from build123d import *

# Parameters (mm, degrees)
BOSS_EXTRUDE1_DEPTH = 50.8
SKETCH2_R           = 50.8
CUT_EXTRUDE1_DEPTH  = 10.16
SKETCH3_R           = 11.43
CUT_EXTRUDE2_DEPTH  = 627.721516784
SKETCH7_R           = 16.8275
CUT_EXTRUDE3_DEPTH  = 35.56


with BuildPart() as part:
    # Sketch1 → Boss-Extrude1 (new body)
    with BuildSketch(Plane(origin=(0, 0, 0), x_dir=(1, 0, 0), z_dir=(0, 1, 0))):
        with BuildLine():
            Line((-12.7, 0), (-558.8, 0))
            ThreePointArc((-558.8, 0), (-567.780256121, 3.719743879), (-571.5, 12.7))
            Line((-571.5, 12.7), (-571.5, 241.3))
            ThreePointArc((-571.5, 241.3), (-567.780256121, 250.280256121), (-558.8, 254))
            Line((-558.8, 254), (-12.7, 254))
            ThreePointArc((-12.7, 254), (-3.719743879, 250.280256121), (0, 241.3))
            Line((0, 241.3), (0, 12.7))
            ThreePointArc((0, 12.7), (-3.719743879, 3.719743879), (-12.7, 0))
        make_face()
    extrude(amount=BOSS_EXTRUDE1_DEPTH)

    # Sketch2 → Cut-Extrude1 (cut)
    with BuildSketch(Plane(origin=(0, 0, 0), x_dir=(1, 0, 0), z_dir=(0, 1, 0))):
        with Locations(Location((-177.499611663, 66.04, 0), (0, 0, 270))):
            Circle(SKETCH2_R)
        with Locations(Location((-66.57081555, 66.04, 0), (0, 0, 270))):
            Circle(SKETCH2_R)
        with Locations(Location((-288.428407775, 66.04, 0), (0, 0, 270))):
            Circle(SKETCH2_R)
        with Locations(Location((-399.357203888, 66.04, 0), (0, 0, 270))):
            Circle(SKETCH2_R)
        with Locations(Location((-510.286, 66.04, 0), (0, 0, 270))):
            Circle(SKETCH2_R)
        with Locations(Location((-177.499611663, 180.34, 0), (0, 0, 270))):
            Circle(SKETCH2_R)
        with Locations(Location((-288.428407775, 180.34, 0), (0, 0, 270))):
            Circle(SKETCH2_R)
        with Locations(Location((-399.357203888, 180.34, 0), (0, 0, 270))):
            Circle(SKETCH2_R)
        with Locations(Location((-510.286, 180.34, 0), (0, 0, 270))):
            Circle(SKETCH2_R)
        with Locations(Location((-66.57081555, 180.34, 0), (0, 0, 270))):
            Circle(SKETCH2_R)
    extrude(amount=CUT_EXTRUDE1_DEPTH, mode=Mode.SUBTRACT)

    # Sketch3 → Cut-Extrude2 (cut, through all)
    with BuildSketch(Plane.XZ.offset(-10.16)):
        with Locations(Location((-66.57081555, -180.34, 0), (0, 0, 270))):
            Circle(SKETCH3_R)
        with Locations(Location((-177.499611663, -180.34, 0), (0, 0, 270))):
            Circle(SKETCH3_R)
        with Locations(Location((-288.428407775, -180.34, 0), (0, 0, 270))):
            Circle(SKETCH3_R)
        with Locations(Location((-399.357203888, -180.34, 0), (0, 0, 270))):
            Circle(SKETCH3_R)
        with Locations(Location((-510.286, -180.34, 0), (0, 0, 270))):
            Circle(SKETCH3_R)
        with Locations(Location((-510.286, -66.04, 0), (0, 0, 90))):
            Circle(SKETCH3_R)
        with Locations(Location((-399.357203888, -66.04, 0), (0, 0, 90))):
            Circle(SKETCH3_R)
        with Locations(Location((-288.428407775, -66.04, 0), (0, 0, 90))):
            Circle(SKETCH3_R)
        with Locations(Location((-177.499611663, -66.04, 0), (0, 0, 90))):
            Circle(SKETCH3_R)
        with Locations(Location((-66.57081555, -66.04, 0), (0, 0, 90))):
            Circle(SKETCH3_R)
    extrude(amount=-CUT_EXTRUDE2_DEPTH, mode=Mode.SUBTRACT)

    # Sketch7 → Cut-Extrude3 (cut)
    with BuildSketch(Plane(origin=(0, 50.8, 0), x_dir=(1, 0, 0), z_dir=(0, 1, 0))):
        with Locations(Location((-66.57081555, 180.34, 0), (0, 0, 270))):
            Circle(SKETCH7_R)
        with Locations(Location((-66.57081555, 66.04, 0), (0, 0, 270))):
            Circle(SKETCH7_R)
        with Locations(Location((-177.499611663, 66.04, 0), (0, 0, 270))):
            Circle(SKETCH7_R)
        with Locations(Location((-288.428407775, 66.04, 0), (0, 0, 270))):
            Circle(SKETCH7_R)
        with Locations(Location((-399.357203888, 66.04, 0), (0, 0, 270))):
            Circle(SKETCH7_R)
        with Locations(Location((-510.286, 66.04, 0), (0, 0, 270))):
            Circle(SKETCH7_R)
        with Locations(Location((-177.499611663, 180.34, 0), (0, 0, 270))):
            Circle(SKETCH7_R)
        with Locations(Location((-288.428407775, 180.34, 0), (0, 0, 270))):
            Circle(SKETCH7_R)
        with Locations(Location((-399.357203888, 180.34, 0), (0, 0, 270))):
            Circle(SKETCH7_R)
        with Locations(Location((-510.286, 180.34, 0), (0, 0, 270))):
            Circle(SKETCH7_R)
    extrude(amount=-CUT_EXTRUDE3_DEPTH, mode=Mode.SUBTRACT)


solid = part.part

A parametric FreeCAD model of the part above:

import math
import FreeCAD as App
import Part
import Sketcher
from FreeCAD import Vector
Q = App.Units.Quantity

doc = App.newDocument("Part")
body = doc.addObject("PartDesign::Body", "Body")

sketch1 = doc.addObject("Sketcher::SketchObject", "Sketch")
body.addObject(sketch1)
sketch1.AttachmentSupport = (doc.XZ_Plane, [""])
sketch1.MapMode = "FlatFace"
sketch1.addGeometry(Part.LineSegment(Vector(-559, 0, 0), Vector(-13, 0, 0)), False)
sketch1.addGeometry(Part.ArcOfCircle(Part.Circle(Vector(-13, -13, 0), Vector(0, 0, 1), 13), math.radians(0), math.radians(90)), False)
sketch1.addGeometry(Part.LineSegment(Vector(0, -13, 0), Vector(0, -241, 0)), False)
sketch1.addGeometry(Part.ArcOfCircle(Part.Circle(Vector(-13, -241, 0), Vector(0, 0, 1), 13), math.radians(-90), math.radians(0)), False)
sketch1.addGeometry(Part.LineSegment(Vector(-13, -254, 0), Vector(-559, -254, 0)), False)
sketch1.addGeometry(Part.ArcOfCircle(Part.Circle(Vector(-559, -241, 0), Vector(0, 0, 1), 13), math.radians(180), math.radians(270)), False)
sketch1.addGeometry(Part.LineSegment(Vector(-572, -241, 0), Vector(-572, -13, 0)), False)
sketch1.addGeometry(Part.ArcOfCircle(Part.Circle(Vector(-559, -13, 0), Vector(0, 0, 1), 13), math.radians(90), math.radians(180)), False)
sketch1.addConstraint(Sketcher.Constraint("Tangent", 0, 2, 1, 2))
sketch1.addConstraint(Sketcher.Constraint("Tangent", 1, 1, 2, 1))
sketch1.addConstraint(Sketcher.Constraint("Tangent", 2, 2, 3, 2))
sketch1.addConstraint(Sketcher.Constraint("Tangent", 3, 1, 4, 1))
sketch1.addConstraint(Sketcher.Constraint("Tangent", 4, 2, 5, 2))
sketch1.addConstraint(Sketcher.Constraint("Tangent", 5, 1, 6, 1))
sketch1.addConstraint(Sketcher.Constraint("Tangent", 6, 2, 7, 2))
sketch1.addConstraint(Sketcher.Constraint("Tangent", 7, 1, 0, 1))
sketch1.addConstraint(Sketcher.Constraint("Horizontal", 0))
sketch1.addConstraint(Sketcher.Constraint("Vertical", 2))
sketch1.addConstraint(Sketcher.Constraint("Horizontal", 4))
sketch1.addConstraint(Sketcher.Constraint("Vertical", 6))
sketch1.addConstraint(Sketcher.Constraint("Equal", 1, 3))
sketch1.addConstraint(Sketcher.Constraint("Equal", 3, 5))
sketch1.addConstraint(Sketcher.Constraint("Equal", 5, 7))
sketch1.addConstraint(Sketcher.Constraint("PointOnObject", 0, 2, -1))
sketch1.addConstraint(Sketcher.Constraint("PointOnObject", 1, 1, -2))
sketch1.addConstraint(Sketcher.Constraint("Radius", 1, Q("0.5 in")))
sketch1.addConstraint(Sketcher.Constraint("DistanceY", 2, 2, 2, 1, Q("9 in")))
sketch1.addConstraint(Sketcher.Constraint("DistanceX", 0, 1, 0, 2, Q("21.5 in")))
pad1 = doc.addObject("PartDesign::Pad", "Pad")
body.addObject(pad1)
pad1.Profile = sketch1
pad1.Length = Q("2 in")
pad1.Reversed = True

sketch2 = doc.addObject("Sketcher::SketchObject", "Sketch001")
body.addObject(sketch2)
sketch2.AttachmentSupport = (doc.XZ_Plane, [""])
sketch2.MapMode = "FlatFace"
sketch2.addGeometry(Part.Circle(Vector(-177, -66, 0), Vector(0, 0, 1), 51), False)
sketch2.addGeometry(Part.Circle(Vector(-67, -66, 0), Vector(0, 0, 1), 51), False)
sketch2.addGeometry(Part.Circle(Vector(-288, -66, 0), Vector(0, 0, 1), 51), False)
sketch2.addGeometry(Part.Circle(Vector(-399, -66, 0), Vector(0, 0, 1), 51), False)
sketch2.addGeometry(Part.Circle(Vector(-510, -66, 0), Vector(0, 0, 1), 51), False)
sketch2.addGeometry(Part.Circle(Vector(-177, -180, 0), Vector(0, 0, 1), 51), False)
sketch2.addGeometry(Part.Circle(Vector(-288, -180, 0), Vector(0, 0, 1), 51), False)
sketch2.addGeometry(Part.Circle(Vector(-399, -180, 0), Vector(0, 0, 1), 51), False)
sketch2.addGeometry(Part.Circle(Vector(-510, -180, 0), Vector(0, 0, 1), 51), False)
sketch2.addGeometry(Part.Circle(Vector(-67, -180, 0), Vector(0, 0, 1), 51), False)
sketch2.addConstraint(Sketcher.Constraint("Equal", 0, 1))
sketch2.addConstraint(Sketcher.Constraint("Equal", 1, 2))
sketch2.addConstraint(Sketcher.Constraint("Equal", 2, 3))
sketch2.addConstraint(Sketcher.Constraint("Equal", 3, 4))
sketch2.addConstraint(Sketcher.Constraint("Equal", 4, 5))
sketch2.addConstraint(Sketcher.Constraint("Equal", 5, 6))
sketch2.addConstraint(Sketcher.Constraint("Equal", 6, 7))
sketch2.addConstraint(Sketcher.Constraint("Equal", 7, 8))
sketch2.addConstraint(Sketcher.Constraint("Equal", 8, 9))
sketch2.addConstraint(Sketcher.Constraint("Horizontal", 0, 3, 1, 3))
sketch2.addConstraint(Sketcher.Constraint("Horizontal", 1, 3, 2, 3))
sketch2.addConstraint(Sketcher.Constraint("Horizontal", 2, 3, 3, 3))
sketch2.addConstraint(Sketcher.Constraint("Horizontal", 3, 3, 4, 3))
sketch2.addConstraint(Sketcher.Constraint("Horizontal", 5, 3, 6, 3))
sketch2.addConstraint(Sketcher.Constraint("Horizontal", 6, 3, 7, 3))
sketch2.addConstraint(Sketcher.Constraint("Horizontal", 7, 3, 8, 3))
sketch2.addConstraint(Sketcher.Constraint("Horizontal", 8, 3, 9, 3))
sketch2.addConstraint(Sketcher.Constraint("Vertical", 0, 3, 5, 3))
sketch2.addConstraint(Sketcher.Constraint("Vertical", 2, 3, 6, 3))
sketch2.addConstraint(Sketcher.Constraint("Vertical", 3, 3, 7, 3))
sketch2.addConstraint(Sketcher.Constraint("Vertical", 4, 3, 8, 3))
sketch2.addConstraint(Sketcher.Constraint("Vertical", 1, 3, 9, 3))
sketch2.addConstraint(Sketcher.Constraint("Diameter", 0, Q("4 in")))
sketch2.addConstraint(Sketcher.Constraint("DistanceY", 0, 3, -1, 1, Q("2.6 in")))
sketch2.addConstraint(Sketcher.Constraint("DistanceY", 5, 3, -1, 1, Q("7.1 in")))
sketch2.addConstraint(Sketcher.Constraint("DistanceX", 4, 3, -1, 1, Q("20.09 in")))
sketch2.addConstraint(Sketcher.Constraint("DistanceX", 0, 3, -1, 1, 177.499612))
sketch2.addConstraint(Sketcher.Constraint("DistanceX", 3, 3, 1, 3, 332.786388))
sketch2.addConstraint(Sketcher.Constraint("DistanceX", 1, 3, -1, 1, 66.570816))
sketch2.addConstraint(Sketcher.Constraint("DistanceX", 2, 3, -1, 1, 288.428408))
pocket1 = doc.addObject("PartDesign::Pocket", "Pocket")
body.addObject(pocket1)
pocket1.Profile = sketch2
pocket1.Length = Q("0.4 in")

sketch3 = doc.addObject("Sketcher::SketchObject", "Sketch002")
body.addObject(sketch3)
sketch3.AttachmentSupport = (doc.XZ_Plane, [""])
sketch3.MapMode = "FlatFace"
sketch3.AttachmentOffset = App.Placement(Vector(0, 0, -0.4 * 25.4), App.Rotation())
sketch3.addGeometry(Part.Circle(Vector(-67, -180, 0), Vector(0, 0, 1), 11), False)
sketch3.addGeometry(Part.Circle(Vector(-177, -180, 0), Vector(0, 0, 1), 11), False)
sketch3.addGeometry(Part.Circle(Vector(-288, -180, 0), Vector(0, 0, 1), 11), False)
sketch3.addGeometry(Part.Circle(Vector(-399, -180, 0), Vector(0, 0, 1), 11), False)
sketch3.addGeometry(Part.Circle(Vector(-510, -180, 0), Vector(0, 0, 1), 11), False)
sketch3.addGeometry(Part.Circle(Vector(-510, -66, 0), Vector(0, 0, 1), 11), False)
sketch3.addGeometry(Part.Circle(Vector(-399, -66, 0), Vector(0, 0, 1), 11), False)
sketch3.addGeometry(Part.Circle(Vector(-288, -66, 0), Vector(0, 0, 1), 11), False)
sketch3.addGeometry(Part.Circle(Vector(-177, -66, 0), Vector(0, 0, 1), 11), False)
sketch3.addGeometry(Part.Circle(Vector(-67, -66, 0), Vector(0, 0, 1), 11), False)
sketch3.addConstraint(Sketcher.Constraint("Equal", 0, 1))
sketch3.addConstraint(Sketcher.Constraint("Equal", 1, 2))
sketch3.addConstraint(Sketcher.Constraint("Equal", 2, 3))
sketch3.addConstraint(Sketcher.Constraint("Equal", 3, 4))
sketch3.addConstraint(Sketcher.Constraint("Equal", 4, 5))
sketch3.addConstraint(Sketcher.Constraint("Equal", 5, 6))
sketch3.addConstraint(Sketcher.Constraint("Equal", 6, 7))
sketch3.addConstraint(Sketcher.Constraint("Equal", 7, 8))
sketch3.addConstraint(Sketcher.Constraint("Equal", 8, 9))
sketch3.addConstraint(Sketcher.Constraint("Horizontal", 0, 3, 1, 3))
sketch3.addConstraint(Sketcher.Constraint("Horizontal", 1, 3, 2, 3))
sketch3.addConstraint(Sketcher.Constraint("Horizontal", 2, 3, 3, 3))
sketch3.addConstraint(Sketcher.Constraint("Horizontal", 3, 3, 4, 3))
sketch3.addConstraint(Sketcher.Constraint("Horizontal", 5, 3, 6, 3))
sketch3.addConstraint(Sketcher.Constraint("Horizontal", 6, 3, 7, 3))
sketch3.addConstraint(Sketcher.Constraint("Horizontal", 7, 3, 8, 3))
sketch3.addConstraint(Sketcher.Constraint("Horizontal", 8, 3, 9, 3))
sketch3.addConstraint(Sketcher.Constraint("Vertical", 4, 3, 5, 3))
sketch3.addConstraint(Sketcher.Constraint("Vertical", 3, 3, 6, 3))
sketch3.addConstraint(Sketcher.Constraint("Vertical", 2, 3, 7, 3))
sketch3.addConstraint(Sketcher.Constraint("Vertical", 1, 3, 8, 3))
sketch3.addConstraint(Sketcher.Constraint("Vertical", 0, 3, 9, 3))
sketch3.addConstraint(Sketcher.Constraint("Diameter", 0, Q("0.9 in")))
sketch3.addConstraint(Sketcher.Constraint("DistanceY", 0, 3, -1, 1, Q("7.1 in")))
sketch3.addConstraint(Sketcher.Constraint("DistanceY", 5, 3, -1, 1, Q("2.6 in")))
sketch3.addConstraint(Sketcher.Constraint("DistanceX", 4, 3, -1, 1, Q("20.09 in")))
sketch3.addConstraint(Sketcher.Constraint("DistanceX", 1, 3, -1, 1, 177.499612))
sketch3.addConstraint(Sketcher.Constraint("DistanceX", 3, 3, 0, 3, 332.786388))
sketch3.addConstraint(Sketcher.Constraint("DistanceX", 0, 3, -1, 1, 66.570816))
sketch3.addConstraint(Sketcher.Constraint("DistanceX", 2, 3, -1, 1, 288.428408))
pocket2 = doc.addObject("PartDesign::Pocket", "Pocket001")
body.addObject(pocket2)
pocket2.Profile = sketch3
pocket2.Type = "ThroughAll"

sketch4 = doc.addObject("Sketcher::SketchObject", "Sketch003")
body.addObject(sketch4)
sketch4.AttachmentSupport = (doc.XZ_Plane, [""])
sketch4.MapMode = "FlatFace"
sketch4.AttachmentOffset = App.Placement(Vector(0, 0, -2 * 25.4), App.Rotation())
sketch4.addGeometry(Part.Circle(Vector(-67, -180, 0), Vector(0, 0, 1), 17), False)
sketch4.addGeometry(Part.Circle(Vector(-67, -66, 0), Vector(0, 0, 1), 17), False)
sketch4.addGeometry(Part.Circle(Vector(-177, -66, 0), Vector(0, 0, 1), 17), False)
sketch4.addGeometry(Part.Circle(Vector(-288, -66, 0), Vector(0, 0, 1), 17), False)
sketch4.addGeometry(Part.Circle(Vector(-399, -66, 0), Vector(0, 0, 1), 17), False)
sketch4.addGeometry(Part.Circle(Vector(-510, -66, 0), Vector(0, 0, 1), 17), False)
sketch4.addGeometry(Part.Circle(Vector(-177, -180, 0), Vector(0, 0, 1), 17), False)
sketch4.addGeometry(Part.Circle(Vector(-288, -180, 0), Vector(0, 0, 1), 17), False)
sketch4.addGeometry(Part.Circle(Vector(-399, -180, 0), Vector(0, 0, 1), 17), False)
sketch4.addGeometry(Part.Circle(Vector(-510, -180, 0), Vector(0, 0, 1), 17), False)
sketch4.addConstraint(Sketcher.Constraint("Equal", 0, 1))
sketch4.addConstraint(Sketcher.Constraint("Equal", 1, 2))
sketch4.addConstraint(Sketcher.Constraint("Equal", 2, 3))
sketch4.addConstraint(Sketcher.Constraint("Equal", 3, 4))
sketch4.addConstraint(Sketcher.Constraint("Equal", 4, 5))
sketch4.addConstraint(Sketcher.Constraint("Equal", 5, 6))
sketch4.addConstraint(Sketcher.Constraint("Equal", 6, 7))
sketch4.addConstraint(Sketcher.Constraint("Equal", 7, 8))
sketch4.addConstraint(Sketcher.Constraint("Equal", 8, 9))
sketch4.addConstraint(Sketcher.Constraint("Horizontal", 1, 3, 2, 3))
sketch4.addConstraint(Sketcher.Constraint("Horizontal", 2, 3, 3, 3))
sketch4.addConstraint(Sketcher.Constraint("Horizontal", 3, 3, 4, 3))
sketch4.addConstraint(Sketcher.Constraint("Horizontal", 4, 3, 5, 3))
sketch4.addConstraint(Sketcher.Constraint("Horizontal", 0, 3, 6, 3))
sketch4.addConstraint(Sketcher.Constraint("Horizontal", 6, 3, 7, 3))
sketch4.addConstraint(Sketcher.Constraint("Horizontal", 7, 3, 8, 3))
sketch4.addConstraint(Sketcher.Constraint("Horizontal", 8, 3, 9, 3))
sketch4.addConstraint(Sketcher.Constraint("Vertical", 0, 3, 1, 3))
sketch4.addConstraint(Sketcher.Constraint("Vertical", 2, 3, 6, 3))
sketch4.addConstraint(Sketcher.Constraint("Vertical", 3, 3, 7, 3))
sketch4.addConstraint(Sketcher.Constraint("Vertical", 4, 3, 8, 3))
sketch4.addConstraint(Sketcher.Constraint("Vertical", 5, 3, 9, 3))
sketch4.addConstraint(Sketcher.Constraint("Diameter", 0, Q("1.325 in")))
sketch4.addConstraint(Sketcher.Constraint("DistanceY", 0, 3, -1, 1, Q("7.1 in")))
sketch4.addConstraint(Sketcher.Constraint("DistanceY", 1, 3, -1, 1, Q("2.6 in")))
sketch4.addConstraint(Sketcher.Constraint("DistanceX", 5, 3, -1, 1, Q("20.09 in")))
sketch4.addConstraint(Sketcher.Constraint("DistanceX", 2, 3, -1, 1, 177.499612))
sketch4.addConstraint(Sketcher.Constraint("DistanceX", 4, 3, 1, 3, 332.786388))
sketch4.addConstraint(Sketcher.Constraint("DistanceX", 0, 3, -1, 1, 66.570816))
sketch4.addConstraint(Sketcher.Constraint("DistanceX", 3, 3, -1, 1, 288.428408))
pocket3 = doc.addObject("PartDesign::Pocket", "Pocket002")
body.addObject(pocket3)
pocket3.Profile = sketch4
pocket3.Length = Q("1.4 in")
pocket3.Reversed = True

doc.recompute()
